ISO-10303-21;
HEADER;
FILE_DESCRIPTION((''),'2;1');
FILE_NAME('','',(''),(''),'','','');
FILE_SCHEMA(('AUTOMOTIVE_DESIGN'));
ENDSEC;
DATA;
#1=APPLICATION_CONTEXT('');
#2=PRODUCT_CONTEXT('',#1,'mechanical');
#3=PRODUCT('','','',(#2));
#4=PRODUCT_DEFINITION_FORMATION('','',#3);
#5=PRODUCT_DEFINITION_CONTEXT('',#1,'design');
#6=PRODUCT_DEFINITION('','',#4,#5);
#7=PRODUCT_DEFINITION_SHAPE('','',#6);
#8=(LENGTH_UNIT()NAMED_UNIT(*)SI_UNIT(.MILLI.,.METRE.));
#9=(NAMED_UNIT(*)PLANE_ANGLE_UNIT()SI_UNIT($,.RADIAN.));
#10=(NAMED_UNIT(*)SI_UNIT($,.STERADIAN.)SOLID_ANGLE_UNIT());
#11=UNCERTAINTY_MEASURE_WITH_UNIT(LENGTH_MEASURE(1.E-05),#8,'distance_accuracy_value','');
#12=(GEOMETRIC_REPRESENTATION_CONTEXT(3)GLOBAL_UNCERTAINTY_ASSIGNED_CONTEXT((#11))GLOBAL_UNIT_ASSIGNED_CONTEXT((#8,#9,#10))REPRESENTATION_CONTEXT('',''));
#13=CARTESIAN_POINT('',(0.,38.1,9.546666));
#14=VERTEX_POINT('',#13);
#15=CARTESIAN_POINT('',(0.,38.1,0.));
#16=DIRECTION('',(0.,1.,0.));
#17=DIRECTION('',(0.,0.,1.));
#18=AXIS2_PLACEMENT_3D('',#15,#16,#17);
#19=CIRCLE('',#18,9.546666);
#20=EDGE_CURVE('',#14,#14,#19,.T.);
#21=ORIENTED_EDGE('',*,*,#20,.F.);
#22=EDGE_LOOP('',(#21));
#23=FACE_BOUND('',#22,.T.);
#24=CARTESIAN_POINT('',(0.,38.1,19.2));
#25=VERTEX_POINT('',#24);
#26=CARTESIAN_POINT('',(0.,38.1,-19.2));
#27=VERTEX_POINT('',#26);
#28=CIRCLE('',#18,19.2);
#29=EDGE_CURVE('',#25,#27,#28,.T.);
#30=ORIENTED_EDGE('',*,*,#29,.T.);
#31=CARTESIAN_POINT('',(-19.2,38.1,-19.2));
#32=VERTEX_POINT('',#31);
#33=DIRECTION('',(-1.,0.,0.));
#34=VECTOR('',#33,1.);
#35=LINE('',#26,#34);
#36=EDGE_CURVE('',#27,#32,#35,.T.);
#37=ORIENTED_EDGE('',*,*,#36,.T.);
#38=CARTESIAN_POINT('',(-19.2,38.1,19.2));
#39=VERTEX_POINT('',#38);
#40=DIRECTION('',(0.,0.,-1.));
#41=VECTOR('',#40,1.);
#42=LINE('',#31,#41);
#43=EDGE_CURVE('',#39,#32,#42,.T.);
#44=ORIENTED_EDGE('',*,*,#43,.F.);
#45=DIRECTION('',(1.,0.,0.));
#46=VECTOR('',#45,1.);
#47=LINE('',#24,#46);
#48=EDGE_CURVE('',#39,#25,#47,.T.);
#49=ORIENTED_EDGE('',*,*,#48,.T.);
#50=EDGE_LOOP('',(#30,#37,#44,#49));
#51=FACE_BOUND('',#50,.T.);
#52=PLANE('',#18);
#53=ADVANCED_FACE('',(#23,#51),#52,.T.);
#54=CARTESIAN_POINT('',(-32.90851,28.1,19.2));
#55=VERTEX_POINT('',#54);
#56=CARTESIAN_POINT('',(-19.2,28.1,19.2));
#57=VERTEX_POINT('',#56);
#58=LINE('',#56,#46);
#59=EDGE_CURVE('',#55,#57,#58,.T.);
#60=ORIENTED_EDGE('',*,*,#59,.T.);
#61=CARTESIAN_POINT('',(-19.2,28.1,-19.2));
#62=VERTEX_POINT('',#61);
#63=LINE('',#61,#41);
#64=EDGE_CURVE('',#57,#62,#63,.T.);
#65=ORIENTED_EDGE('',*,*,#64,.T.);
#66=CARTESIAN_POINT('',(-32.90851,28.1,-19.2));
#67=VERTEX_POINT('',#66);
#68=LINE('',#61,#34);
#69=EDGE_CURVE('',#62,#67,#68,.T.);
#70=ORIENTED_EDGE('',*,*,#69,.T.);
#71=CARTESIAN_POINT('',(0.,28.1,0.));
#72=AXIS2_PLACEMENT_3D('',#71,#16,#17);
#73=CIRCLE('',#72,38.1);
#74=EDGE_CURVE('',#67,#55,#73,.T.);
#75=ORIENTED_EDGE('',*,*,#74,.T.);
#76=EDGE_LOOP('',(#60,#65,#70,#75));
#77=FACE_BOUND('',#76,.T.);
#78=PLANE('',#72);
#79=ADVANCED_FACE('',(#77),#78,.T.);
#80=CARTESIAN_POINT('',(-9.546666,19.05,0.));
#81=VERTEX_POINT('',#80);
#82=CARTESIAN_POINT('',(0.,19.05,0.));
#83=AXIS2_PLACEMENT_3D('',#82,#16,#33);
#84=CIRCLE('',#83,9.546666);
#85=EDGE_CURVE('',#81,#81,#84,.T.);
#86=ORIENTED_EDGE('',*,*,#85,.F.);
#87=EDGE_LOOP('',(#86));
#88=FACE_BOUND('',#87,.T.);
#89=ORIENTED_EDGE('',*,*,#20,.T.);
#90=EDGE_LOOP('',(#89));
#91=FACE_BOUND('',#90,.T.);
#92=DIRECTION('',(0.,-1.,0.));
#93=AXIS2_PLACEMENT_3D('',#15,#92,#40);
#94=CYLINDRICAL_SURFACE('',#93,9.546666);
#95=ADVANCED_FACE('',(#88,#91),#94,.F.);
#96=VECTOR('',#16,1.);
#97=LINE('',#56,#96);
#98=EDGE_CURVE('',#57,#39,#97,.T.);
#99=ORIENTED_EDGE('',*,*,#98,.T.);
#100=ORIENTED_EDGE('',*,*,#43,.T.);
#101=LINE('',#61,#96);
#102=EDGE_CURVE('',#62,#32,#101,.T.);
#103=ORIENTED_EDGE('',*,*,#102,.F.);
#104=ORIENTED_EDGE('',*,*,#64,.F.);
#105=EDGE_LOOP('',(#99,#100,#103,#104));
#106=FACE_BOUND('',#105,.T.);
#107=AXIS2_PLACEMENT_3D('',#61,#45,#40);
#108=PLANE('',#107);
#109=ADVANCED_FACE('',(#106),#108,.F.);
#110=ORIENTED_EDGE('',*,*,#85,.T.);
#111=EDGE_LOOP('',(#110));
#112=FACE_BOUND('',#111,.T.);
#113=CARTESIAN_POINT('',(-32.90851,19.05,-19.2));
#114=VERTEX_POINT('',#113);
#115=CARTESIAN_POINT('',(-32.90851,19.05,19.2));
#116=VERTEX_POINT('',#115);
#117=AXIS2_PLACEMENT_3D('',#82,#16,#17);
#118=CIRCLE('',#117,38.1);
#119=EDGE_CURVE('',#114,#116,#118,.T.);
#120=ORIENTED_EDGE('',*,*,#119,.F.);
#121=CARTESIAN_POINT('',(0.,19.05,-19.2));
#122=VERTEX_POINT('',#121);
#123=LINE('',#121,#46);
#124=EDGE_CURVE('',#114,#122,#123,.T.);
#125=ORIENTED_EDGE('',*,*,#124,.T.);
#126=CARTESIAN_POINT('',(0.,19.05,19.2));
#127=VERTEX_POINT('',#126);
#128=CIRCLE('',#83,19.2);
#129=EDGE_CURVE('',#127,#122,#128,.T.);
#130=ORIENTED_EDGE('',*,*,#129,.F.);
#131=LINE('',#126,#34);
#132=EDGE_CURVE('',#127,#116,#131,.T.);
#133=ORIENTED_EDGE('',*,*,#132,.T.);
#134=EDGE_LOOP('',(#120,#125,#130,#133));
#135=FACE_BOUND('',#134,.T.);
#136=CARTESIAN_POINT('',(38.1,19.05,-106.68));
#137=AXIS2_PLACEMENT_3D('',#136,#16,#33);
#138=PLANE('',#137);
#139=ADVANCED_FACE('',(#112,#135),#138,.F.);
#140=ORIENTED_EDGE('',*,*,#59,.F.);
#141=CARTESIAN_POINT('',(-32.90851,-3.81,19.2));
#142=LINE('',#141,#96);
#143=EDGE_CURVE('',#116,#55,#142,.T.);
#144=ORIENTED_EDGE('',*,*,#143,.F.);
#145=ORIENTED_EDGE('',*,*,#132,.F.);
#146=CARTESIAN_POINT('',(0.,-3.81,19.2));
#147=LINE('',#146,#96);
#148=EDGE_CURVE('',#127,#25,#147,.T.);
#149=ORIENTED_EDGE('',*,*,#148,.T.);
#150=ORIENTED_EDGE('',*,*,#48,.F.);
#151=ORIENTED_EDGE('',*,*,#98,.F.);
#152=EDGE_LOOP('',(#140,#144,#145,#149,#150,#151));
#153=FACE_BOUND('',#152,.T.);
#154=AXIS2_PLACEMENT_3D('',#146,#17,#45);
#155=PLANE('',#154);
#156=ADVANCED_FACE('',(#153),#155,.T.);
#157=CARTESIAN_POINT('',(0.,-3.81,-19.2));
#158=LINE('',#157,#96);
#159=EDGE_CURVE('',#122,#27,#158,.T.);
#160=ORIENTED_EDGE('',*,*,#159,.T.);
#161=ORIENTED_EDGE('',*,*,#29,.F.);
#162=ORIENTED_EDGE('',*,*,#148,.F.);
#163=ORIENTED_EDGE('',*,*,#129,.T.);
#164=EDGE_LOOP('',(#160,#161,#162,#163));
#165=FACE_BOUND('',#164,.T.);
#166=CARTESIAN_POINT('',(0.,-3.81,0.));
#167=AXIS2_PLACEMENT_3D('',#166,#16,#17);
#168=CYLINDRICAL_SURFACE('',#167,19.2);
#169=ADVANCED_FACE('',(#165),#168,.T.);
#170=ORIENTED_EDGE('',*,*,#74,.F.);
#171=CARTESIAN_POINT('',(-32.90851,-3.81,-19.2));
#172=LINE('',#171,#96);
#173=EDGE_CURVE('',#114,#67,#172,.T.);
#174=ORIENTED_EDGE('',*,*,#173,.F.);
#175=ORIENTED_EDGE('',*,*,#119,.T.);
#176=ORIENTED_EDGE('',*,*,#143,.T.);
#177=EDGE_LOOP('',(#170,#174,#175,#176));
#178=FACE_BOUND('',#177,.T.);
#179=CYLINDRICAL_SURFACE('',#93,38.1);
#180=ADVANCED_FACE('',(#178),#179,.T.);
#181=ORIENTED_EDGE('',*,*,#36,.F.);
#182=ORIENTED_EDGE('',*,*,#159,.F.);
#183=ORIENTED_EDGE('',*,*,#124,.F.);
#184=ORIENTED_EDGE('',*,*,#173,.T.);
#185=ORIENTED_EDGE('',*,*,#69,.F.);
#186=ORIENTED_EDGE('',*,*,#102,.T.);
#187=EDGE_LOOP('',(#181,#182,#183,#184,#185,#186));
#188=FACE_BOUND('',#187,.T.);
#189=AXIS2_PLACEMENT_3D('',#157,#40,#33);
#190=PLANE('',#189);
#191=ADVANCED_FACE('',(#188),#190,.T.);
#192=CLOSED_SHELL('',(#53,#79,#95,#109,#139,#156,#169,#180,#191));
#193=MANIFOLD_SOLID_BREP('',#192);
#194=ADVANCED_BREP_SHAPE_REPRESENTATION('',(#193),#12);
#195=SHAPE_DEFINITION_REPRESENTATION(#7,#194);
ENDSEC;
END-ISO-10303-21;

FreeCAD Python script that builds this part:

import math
import FreeCAD as App
import Part
import Sketcher
from FreeCAD import Vector
Q = App.Units.Quantity

doc = App.newDocument("Part")
body = doc.addObject("PartDesign::Body", "Body")

sketch1 = doc.addObject("Sketcher::SketchObject", "Sketch")
body.addObject(sketch1)
sketch1.AttachmentSupport = (doc.XZ_Plane, [""])
sketch1.MapMode = "FlatFace"
sketch1.addGeometry(Part.Circle(Vector(0, 0, 0), Vector(0, 0, 1), 38), False)
sketch1.addGeometry(Part.Circle(Vector(0, 0, 0), Vector(0, 0, 1), 10), False)
sketch1.addConstraint(Sketcher.Constraint("Coincident", 0, 3, -1, 1))
sketch1.addConstraint(Sketcher.Constraint("Coincident", 1, 3, -1, 1))
sketch1.addConstraint(Sketcher.Constraint("Diameter", 0, Q("3 in")))
sketch1.addConstraint(Sketcher.Constraint("Diameter", 1, 19.093332))
pad1 = doc.addObject("PartDesign::Pad", "Pad")
body.addObject(pad1)
pad1.Profile = sketch1
pad1.Length = Q("1.5 in")
pad1.Reversed = True

sketch2 = doc.addObject("Sketcher::SketchObject", "Sketch001")
body.addObject(sketch2)
sketch2.AttachmentSupport = (doc.XY_Plane, [""])
sketch2.MapMode = "FlatFace"
sketch2.AttachmentOffset = App.Placement(Vector(0, 0, 1.5 * 25.4), App.Rotation())
sketch2.addGeometry(Part.LineSegment(Vector(0, 19, 0), Vector(0, 0, 0)), False)
sketch2.addGeometry(Part.LineSegment(Vector(0, 0, 0), Vector(38, 0, 0)), False)
sketch2.addGeometry(Part.LineSegment(Vector(38, 0, 0), Vector(38, 19, 0)), False)
sketch2.addGeometry(Part.LineSegment(Vector(38, 19, 0), Vector(0, 19, 0)), False)
sketch2.addConstraint(Sketcher.Constraint("Coincident", 0, 2, 1, 1))
sketch2.addConstraint(Sketcher.Constraint("Coincident", 1, 2, 2, 1))
sketch2.addConstraint(Sketcher.Constraint("Coincident", 2, 2, 3, 1))
sketch2.addConstraint(Sketcher.Constraint("Coincident", 3, 2, 0, 1))
sketch2.addConstraint(Sketcher.Constraint("Vertical", 0))
sketch2.addConstraint(Sketcher.Constraint("Horizontal", 1))
sketch2.addConstraint(Sketcher.Constraint("Vertical", 2))
sketch2.addConstraint(Sketcher.Constraint("Horizontal", 3))
sketch2.addConstraint(Sketcher.Constraint("Coincident", 0, 2, -1, 1))
sketch2.addConstraint(Sketcher.Constraint("DistanceX", 1, 1, 1, 2, Q("1.5 in")))
sketch2.addConstraint(Sketcher.Constraint("DistanceY", 0, 2, 0, 1, Q("0.75 in")))
pocket1 = doc.addObject("PartDesign::Pocket", "Pocket")
body.addObject(pocket1)
pocket1.Profile = sketch2
pocket1.Length = Q("5.7 in")

sketch3 = doc.addObject("Sketcher::SketchObject", "Sketch002")
body.addObject(sketch3)
sketch3.AttachmentSupport = (doc.XZ_Plane, [""])
sketch3.MapMode = "FlatFace"
sketch3.AttachmentOffset = App.Placement(Vector(0, 0, -0.75 * 25.4), App.Rotation())
sketch3.addGeometry(Part.LineSegment(Vector(0, -19, 0), Vector(-33, -19, 0)), False)
sketch3.addGeometry(Part.ArcOfCircle(Part.Circle(Vector(0, 0, 0), Vector(0, 0, 1), 38), math.radians(-150), math.radians(150)), False)
sketch3.addGeometry(Part.LineSegment(Vector(-33, 19, 0), Vector(0, 19, 0)), False)
sketch3.addGeometry(Part.ArcOfCircle(Part.Circle(Vector(0, 0, 0), Vector(0, 0, 1), 19), math.radians(-90), math.radians(90)), False)
sketch3.addConstraint(Sketcher.Constraint("Coincident", 0, 2, 1, 1))
sketch3.addConstraint(Sketcher.Constraint("Coincident", 1, 2, 2, 1))
sketch3.addConstraint(Sketcher.Constraint("Tangent", 2, 2, 3, 2))
sketch3.addConstraint(Sketcher.Constraint("Tangent", 3, 1, 0, 1))
sketch3.addConstraint(Sketcher.Constraint("Horizontal", 0))
sketch3.addConstraint(Sketcher.Constraint("Horizontal", 2))
sketch3.addConstraint(Sketcher.Constraint("Coincident", 1, 3, -1, 1))
sketch3.addConstraint(Sketcher.Constraint("Coincident", 3, 3, -1, 1))
sketch3.addConstraint(Sketcher.Constraint("Radius", 1, Q("1.5 in")))
sketch3.addConstraint(Sketcher.Constraint("Radius", 3, 19.2))
pocket2 = doc.addObject("PartDesign::Pocket", "Pocket001")
body.addObject(pocket2)
pocket2.Profile = sketch3
pocket2.Type = "ThroughAll"
pocket2.Midplane = True

sketch4 = doc.addObject("Sketcher::SketchObject", "Sketch003")
body.addObject(sketch4)
sketch4.AttachmentSupport = (doc.XY_Plane, [""])
sketch4.MapMode = "FlatFace"
sketch4.AttachmentOffset = App.Placement(Vector(0, 0, 19.2), App.Rotation())
sketch4.addGeometry(Part.LineSegment(Vector(-40, 19, 0), Vector(-40, -4, 0)), False)
sketch4.addGeometry(Part.LineSegment(Vector(-40, -4, 0), Vector(0, -4, 0)), False)
sketch4.addGeometry(Part.LineSegment(Vector(0, -4, 0), Vector(0, 19, 0)), False)
sketch4.addGeometry(Part.LineSegment(Vector(0, 19, 0), Vector(-40, 19, 0)), False)
sketch4.addConstraint(Sketcher.Constraint("Coincident", 0, 2, 1, 1))
sketch4.addConstraint(Sketcher.Constraint("Coincident", 1, 2, 2, 1))
sketch4.addConstraint(Sketcher.Constraint("Coincident", 2, 2, 3, 1))
sketch4.addConstraint(Sketcher.Constraint("Coincident", 3, 2, 0, 1))
sketch4.addConstraint(Sketcher.Constraint("Vertical", 0))
sketch4.addConstraint(Sketcher.Constraint("Horizontal", 1))
sketch4.addConstraint(Sketcher.Constraint("Vertical", 2))
sketch4.addConstraint(Sketcher.Constraint("Horizontal", 3))
sketch4.addConstraint(Sketcher.Constraint("PointOnObject", 1, 2, -2))
sketch4.addConstraint(Sketcher.Constraint("DistanceY", -1, 1, 2, 2, Q("0.75 in")))
sketch4.addConstraint(Sketcher.Constraint("DistanceX", 1, 1, 1, 2, 40.342749))
sketch4.addConstraint(Sketcher.Constraint("DistanceY", 0, 2, 0, 1, 23.109589))
pocket3 = doc.addObject("PartDesign::Pocket", "Pocket002")
body.addObject(pocket3)
pocket3.Profile = sketch4
pocket3.Length = Q("2.11 in")

sketch5 = doc.addObject("Sketcher::SketchObject", "Sketch004")
body.addObject(sketch5)
sketch5.AttachmentSupport = (doc.XZ_Plane, [""])
sketch5.MapMode = "FlatFace"
sketch5.AttachmentOffset = App.Placement(Vector(0, 0, -1.5 * 25.4), App.Rotation())
sketch5.addGeometry(Part.LineSegment(Vector(-19, 19, 0), Vector(-19, -19, 0)), False)
sketch5.addGeometry(Part.LineSegment(Vector(-19, -19, 0), Vector(-33, -19, 0)), False)
sketch5.addGeometry(Part.ArcOfCircle(Part.Circle(Vector(0, 0, 0), Vector(0, 0, 1), 38), math.radians(150), math.radians(210)), False)
sketch5.addGeometry(Part.LineSegment(Vector(-33, 19, 0), Vector(-19, 19, 0)), False)
sketch5.addConstraint(Sketcher.Constraint("Coincident", 0, 2, 1, 1))
sketch5.addConstraint(Sketcher.Constraint("Coincident", 1, 2, 2, 2))
sketch5.addConstraint(Sketcher.Constraint("Coincident", 2, 1, 3, 1))
sketch5.addConstraint(Sketcher.Constraint("Coincident", 3, 2, 0, 1))
sketch5.addConstraint(Sketcher.Constraint("Vertical", 0))
sketch5.addConstraint(Sketcher.Constraint("Horizontal", 1))
sketch5.addConstraint(Sketcher.Constraint("Horizontal", 3))
sketch5.addConstraint(Sketcher.Constraint("Coincident", 2, 3, -1, 1))
sketch5.addConstraint(Sketcher.Constraint("Vertical", 1, 2, 2, 1))
sketch5.addConstraint(Sketcher.Constraint("Radius", 2, Q("1.5 in")))
sketch5.addConstraint(Sketcher.Constraint("DistanceY", 0, 2, 0, 1, 38.4))
sketch5.addConstraint(Sketcher.Constraint("DistanceX", 1, 2, 1, 1, 13.70851))
pocket4 = doc.addObject("PartDesign::Pocket", "Pocket003")
body.addObject(pocket4)
pocket4.Profile = sketch5
pocket4.Length = 10
pocket4.Reversed = True

doc.recompute()
